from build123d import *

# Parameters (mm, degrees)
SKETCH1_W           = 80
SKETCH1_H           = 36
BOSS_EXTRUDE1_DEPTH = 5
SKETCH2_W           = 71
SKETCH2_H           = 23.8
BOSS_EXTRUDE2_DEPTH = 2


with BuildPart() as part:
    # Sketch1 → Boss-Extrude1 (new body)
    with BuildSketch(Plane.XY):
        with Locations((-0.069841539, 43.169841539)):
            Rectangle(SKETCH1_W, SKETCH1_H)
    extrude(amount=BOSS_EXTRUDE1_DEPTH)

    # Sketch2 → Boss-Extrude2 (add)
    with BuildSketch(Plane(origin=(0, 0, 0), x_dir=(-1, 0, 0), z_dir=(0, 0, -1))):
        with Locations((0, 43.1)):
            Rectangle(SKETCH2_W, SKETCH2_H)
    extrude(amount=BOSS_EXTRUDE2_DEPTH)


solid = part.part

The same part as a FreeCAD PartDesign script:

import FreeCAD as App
import Part
import Sketcher
from FreeCAD import Vector
Q = App.Units.Quantity

doc = App.newDocument("Part")
body = doc.addObject("PartDesign::Body", "Body")

# Sketch on XY plane
sketch1 = doc.addObject("Sketcher::SketchObject", "Sketch")
body.addObject(sketch1)
sketch1.AttachmentSupport = (doc.XY_Plane, [""])
sketch1.MapMode = "FlatFace"
sketch1.addGeometry([
    Part.LineSegment(Vector(-40, 61, 0), Vector(-40, 25, 0)),
    Part.LineSegment(Vector(-40, 25, 0), Vector(40, 25, 0)),
    Part.LineSegment(Vector(40, 25, 0), Vector(40, 61, 0)),
    Part.LineSegment(Vector(40, 61, 0), Vector(-40, 61, 0)),
], False)
sketch1.addConstraint([
    Sketcher.Constraint("Coincident", 0, 2, 1, 1),
    Sketcher.Constraint("Coincident", 1, 2, 2, 1),
    Sketcher.Constraint("Coincident", 2, 2, 3, 1),
    Sketcher.Constraint("Coincident", 3, 2, 0, 1),
    Sketcher.Constraint("Vertical", 0),
    Sketcher.Constraint("Horizontal", 1),
    Sketcher.Constraint("Vertical", 2),
    Sketcher.Constraint("Horizontal", 3),
    Sketcher.Constraint("DistanceX", 1, 1, 1, 2, Q("80 mm")),
    Sketcher.Constraint("DistanceY", 0, 2, 0, 1, Q("36 mm")),
    Sketcher.Constraint("DistanceX", 0, 2, -1, 1, Q("40.069842 mm")),
    Sketcher.Constraint("DistanceY", -1, 1, 0, 2, Q("25.169842 mm")),
])
pad1 = doc.addObject("PartDesign::Pad", "Pad")
body.addObject(pad1)
pad1.Profile = sketch1
pad1.Length = 5

# Sketch on XY plane
sketch2 = doc.addObject("Sketcher::SketchObject", "Sketch001")
body.addObject(sketch2)
sketch2.AttachmentSupport = (doc.XY_Plane, [""])
sketch2.MapMode = "FlatFace"
sketch2.addGeometry([
    Part.LineSegment(Vector(36, 55, 0), Vector(36, 31, 0)),
    Part.LineSegment(Vector(36, 31, 0), Vector(-36, 31, 0)),
    Part.LineSegment(Vector(-36, 31, 0), Vector(-36, 55, 0)),
    Part.LineSegment(Vector(-36, 55, 0), Vector(36, 55, 0)),
], False)
sketch2.addConstraint([
    Sketcher.Constraint("Coincident", 0, 2, 1, 1),
    Sketcher.Constraint("Coincident", 1, 2, 2, 1),
    Sketcher.Constraint("Coincident", 2, 2, 3, 1),
    Sketcher.Constraint("Coincident", 3, 2, 0, 1),
    Sketcher.Constraint("Vertical", 0),
    Sketcher.Constraint("Horizontal", 1),
    Sketcher.Constraint("Vertical", 2),
    Sketcher.Constraint("Horizontal", 3),
    Sketcher.Constraint("DistanceX", 1, 2, 1, 1, Q("71 mm")),
    Sketcher.Constraint("DistanceY", 0, 2, 0, 1, Q("23.8 mm")),
    Sketcher.Constraint("DistanceY", -1, 1, 2, 2, Q("55 mm")),
    Sketcher.Constraint("DistanceX", -1, 1, 0, 2, Q("35.5 mm")),
])
pad2 = doc.addObject("PartDesign::Pad", "Pad001")
body.addObject(pad2)
pad2.Profile = sketch2
pad2.Length = 2
pad2.Reversed = True

doc.recompute()
